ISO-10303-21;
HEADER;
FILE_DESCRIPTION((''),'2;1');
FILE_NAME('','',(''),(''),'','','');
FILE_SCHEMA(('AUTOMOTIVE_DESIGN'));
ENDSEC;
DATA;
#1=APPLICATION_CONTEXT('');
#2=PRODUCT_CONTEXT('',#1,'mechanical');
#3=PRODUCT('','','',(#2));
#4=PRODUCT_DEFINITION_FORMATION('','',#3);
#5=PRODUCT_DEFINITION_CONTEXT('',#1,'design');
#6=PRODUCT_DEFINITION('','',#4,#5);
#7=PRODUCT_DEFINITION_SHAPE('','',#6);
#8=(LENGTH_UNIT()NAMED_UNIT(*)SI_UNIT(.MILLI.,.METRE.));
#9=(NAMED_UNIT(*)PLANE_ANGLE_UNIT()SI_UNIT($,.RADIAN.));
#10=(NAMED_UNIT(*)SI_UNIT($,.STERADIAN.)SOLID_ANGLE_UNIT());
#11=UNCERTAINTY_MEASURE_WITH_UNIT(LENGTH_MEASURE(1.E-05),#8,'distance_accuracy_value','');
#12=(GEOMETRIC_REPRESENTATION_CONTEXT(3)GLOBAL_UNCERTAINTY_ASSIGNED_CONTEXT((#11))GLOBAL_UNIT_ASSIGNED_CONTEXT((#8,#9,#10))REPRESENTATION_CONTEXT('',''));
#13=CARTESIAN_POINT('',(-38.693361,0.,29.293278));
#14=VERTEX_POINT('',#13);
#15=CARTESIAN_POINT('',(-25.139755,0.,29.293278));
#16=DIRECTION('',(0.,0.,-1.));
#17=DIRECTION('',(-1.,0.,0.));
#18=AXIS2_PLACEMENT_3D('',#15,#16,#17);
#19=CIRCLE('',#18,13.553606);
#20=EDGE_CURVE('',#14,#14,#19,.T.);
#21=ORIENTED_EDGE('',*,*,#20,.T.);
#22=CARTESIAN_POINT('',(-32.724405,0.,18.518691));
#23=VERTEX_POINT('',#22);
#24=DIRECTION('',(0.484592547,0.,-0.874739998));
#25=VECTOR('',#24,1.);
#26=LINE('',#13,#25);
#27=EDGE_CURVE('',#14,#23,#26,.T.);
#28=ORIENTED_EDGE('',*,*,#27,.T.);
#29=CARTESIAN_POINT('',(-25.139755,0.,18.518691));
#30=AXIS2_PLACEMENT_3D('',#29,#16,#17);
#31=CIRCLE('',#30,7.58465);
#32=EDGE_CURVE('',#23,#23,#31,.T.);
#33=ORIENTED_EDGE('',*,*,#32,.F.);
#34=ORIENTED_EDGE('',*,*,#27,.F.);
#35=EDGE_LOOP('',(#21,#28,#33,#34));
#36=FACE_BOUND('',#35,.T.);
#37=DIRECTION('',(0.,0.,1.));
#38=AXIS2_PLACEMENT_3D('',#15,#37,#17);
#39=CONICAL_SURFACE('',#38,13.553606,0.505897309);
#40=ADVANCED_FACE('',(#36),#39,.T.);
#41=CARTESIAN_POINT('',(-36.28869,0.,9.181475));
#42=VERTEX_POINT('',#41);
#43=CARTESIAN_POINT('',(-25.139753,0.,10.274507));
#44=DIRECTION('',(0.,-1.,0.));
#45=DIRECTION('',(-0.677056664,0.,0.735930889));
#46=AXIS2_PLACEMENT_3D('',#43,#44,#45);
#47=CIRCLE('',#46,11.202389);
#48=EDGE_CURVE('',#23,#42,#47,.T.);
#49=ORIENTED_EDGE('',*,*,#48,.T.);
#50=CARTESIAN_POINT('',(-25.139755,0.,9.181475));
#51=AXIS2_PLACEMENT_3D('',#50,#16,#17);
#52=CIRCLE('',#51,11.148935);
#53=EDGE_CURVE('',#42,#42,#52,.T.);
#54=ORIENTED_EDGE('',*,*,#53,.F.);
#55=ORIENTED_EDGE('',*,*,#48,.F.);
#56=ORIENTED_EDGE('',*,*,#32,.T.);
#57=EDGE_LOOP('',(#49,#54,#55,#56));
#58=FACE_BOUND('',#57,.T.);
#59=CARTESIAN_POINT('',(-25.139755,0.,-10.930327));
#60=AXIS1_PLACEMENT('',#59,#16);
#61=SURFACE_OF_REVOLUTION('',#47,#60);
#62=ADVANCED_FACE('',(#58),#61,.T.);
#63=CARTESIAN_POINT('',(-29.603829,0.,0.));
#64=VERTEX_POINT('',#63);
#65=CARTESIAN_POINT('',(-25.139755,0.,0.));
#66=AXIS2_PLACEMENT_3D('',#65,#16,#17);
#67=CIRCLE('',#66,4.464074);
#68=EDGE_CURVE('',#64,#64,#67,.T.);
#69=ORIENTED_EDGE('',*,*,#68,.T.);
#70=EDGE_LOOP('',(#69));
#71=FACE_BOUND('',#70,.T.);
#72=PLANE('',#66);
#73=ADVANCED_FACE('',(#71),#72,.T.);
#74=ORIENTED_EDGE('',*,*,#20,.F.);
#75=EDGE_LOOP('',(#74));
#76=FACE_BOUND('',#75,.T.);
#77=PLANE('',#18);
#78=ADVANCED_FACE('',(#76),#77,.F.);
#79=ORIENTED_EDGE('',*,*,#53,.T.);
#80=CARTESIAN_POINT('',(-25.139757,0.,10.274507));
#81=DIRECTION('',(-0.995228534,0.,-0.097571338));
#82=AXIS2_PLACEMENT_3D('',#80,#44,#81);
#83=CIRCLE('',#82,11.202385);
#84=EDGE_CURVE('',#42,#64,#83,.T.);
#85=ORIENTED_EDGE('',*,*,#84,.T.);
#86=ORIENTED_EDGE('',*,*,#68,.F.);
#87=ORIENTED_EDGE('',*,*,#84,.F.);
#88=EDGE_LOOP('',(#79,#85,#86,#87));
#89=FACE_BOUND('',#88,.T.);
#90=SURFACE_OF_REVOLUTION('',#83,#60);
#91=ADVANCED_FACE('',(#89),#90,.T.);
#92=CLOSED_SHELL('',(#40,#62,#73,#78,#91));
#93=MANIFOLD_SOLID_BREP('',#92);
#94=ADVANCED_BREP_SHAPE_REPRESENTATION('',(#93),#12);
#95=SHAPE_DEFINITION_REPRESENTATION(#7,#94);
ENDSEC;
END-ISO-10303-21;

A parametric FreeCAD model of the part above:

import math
import FreeCAD as App
import Part
import Sketcher
Q = App.Units.Quantity

doc = App.newDocument("Part")
body = doc.addObject("PartDesign::Body", "Body")

sketch1 = body.newObject("Sketcher::SketchObject", "Sketch")
sketch1.AttachmentSupport = (doc.getObject("XZ_Plane"), [""])
sketch1.MapMode = "FlatFace"
sketch1.addGeometry([
    Part.ArcOfCircle(Part.Circle(App.Vector(-25.139753, 10.274507, 0), App.Vector(0, 0, 1), 11.202389), math.radians(132.614066), math.radians(185.599334)),
    Part.ArcOfCircle(Part.Circle(App.Vector(-25.139757, 10.274507, 0), App.Vector(0, 0, 1), 11.202385), math.radians(-174.400666), math.radians(-113.484003)),
    Part.LineSegment(App.Vector(-29.603829, 0, 0), App.Vector(-25.139755, 0, 0)),
    Part.LineSegment(App.Vector(-25.139755, 0, 0), App.Vector(-25.139755, 29.293278, 0)),
    Part.LineSegment(App.Vector(-25.139755, 29.293278, 0), App.Vector(-38.693361, 29.293278, 0)),
    Part.LineSegment(App.Vector(-38.693361, 29.293278, 0), App.Vector(-32.724405, 18.518691, 0)),
], False)
sketch1.addGeometry(Part.LineSegment(App.Vector(-25.139755, 29.293278, 0), App.Vector(-25.139755, 0, 0)), True)
sketch1.addConstraint([
    Sketcher.Constraint("Tangent", 0, 2, 1, 1),
    Sketcher.Constraint("Coincident", 1, 2, 2, 1),
    Sketcher.Constraint("Coincident", 2, 2, 3, 1),
    Sketcher.Constraint("Coincident", 3, 2, 4, 1),
    Sketcher.Constraint("Coincident", 4, 2, 5, 1),
    Sketcher.Constraint("Coincident", 5, 2, 0, 1),
    Sketcher.Constraint("Horizontal", 2),
    Sketcher.Constraint("Vertical", 3),
    Sketcher.Constraint("Horizontal", 4),
    Sketcher.Constraint("Vertical", 6),
    Sketcher.Constraint("Coincident", 6, 1, 3, 2),
    Sketcher.Constraint("PointOnObject", 1, 2, -1),
    Sketcher.Constraint("PointOnObject", 6, 2, -1),
    Sketcher.Constraint("Vertical", 1, 3, 2, 2),
    Sketcher.Constraint("Radius", 0, Q("11.202389 mm")),
    Sketcher.Constraint("Radius", 1, Q("11.202385 mm")),
    Sketcher.Constraint("DistanceY", 3, 1, 3, 2, Q("29.293278 mm")),
    Sketcher.Constraint("DistanceX", 2, 1, 2, 2, Q("4.464074 mm")),
    Sketcher.Constraint("DistanceX", 4, 2, 4, 1, Q("13.553606 mm")),
    Sketcher.Constraint("DistanceX", 0, 2, -1, 1, Q("36.28869 mm")),
    Sketcher.Constraint("DistanceX", 1, 2, -1, 1, Q("29.603829 mm")),
    Sketcher.Constraint("DistanceY", -1, 1, 5, 2, Q("18.518691 mm")),
])
revolution = body.newObject("PartDesign::Revolution", "Revolution")
revolution.Profile = sketch1
revolution.ReferenceAxis = (sketch1, ["Axis0"])
revolution.Angle = 360

doc.recompute()
